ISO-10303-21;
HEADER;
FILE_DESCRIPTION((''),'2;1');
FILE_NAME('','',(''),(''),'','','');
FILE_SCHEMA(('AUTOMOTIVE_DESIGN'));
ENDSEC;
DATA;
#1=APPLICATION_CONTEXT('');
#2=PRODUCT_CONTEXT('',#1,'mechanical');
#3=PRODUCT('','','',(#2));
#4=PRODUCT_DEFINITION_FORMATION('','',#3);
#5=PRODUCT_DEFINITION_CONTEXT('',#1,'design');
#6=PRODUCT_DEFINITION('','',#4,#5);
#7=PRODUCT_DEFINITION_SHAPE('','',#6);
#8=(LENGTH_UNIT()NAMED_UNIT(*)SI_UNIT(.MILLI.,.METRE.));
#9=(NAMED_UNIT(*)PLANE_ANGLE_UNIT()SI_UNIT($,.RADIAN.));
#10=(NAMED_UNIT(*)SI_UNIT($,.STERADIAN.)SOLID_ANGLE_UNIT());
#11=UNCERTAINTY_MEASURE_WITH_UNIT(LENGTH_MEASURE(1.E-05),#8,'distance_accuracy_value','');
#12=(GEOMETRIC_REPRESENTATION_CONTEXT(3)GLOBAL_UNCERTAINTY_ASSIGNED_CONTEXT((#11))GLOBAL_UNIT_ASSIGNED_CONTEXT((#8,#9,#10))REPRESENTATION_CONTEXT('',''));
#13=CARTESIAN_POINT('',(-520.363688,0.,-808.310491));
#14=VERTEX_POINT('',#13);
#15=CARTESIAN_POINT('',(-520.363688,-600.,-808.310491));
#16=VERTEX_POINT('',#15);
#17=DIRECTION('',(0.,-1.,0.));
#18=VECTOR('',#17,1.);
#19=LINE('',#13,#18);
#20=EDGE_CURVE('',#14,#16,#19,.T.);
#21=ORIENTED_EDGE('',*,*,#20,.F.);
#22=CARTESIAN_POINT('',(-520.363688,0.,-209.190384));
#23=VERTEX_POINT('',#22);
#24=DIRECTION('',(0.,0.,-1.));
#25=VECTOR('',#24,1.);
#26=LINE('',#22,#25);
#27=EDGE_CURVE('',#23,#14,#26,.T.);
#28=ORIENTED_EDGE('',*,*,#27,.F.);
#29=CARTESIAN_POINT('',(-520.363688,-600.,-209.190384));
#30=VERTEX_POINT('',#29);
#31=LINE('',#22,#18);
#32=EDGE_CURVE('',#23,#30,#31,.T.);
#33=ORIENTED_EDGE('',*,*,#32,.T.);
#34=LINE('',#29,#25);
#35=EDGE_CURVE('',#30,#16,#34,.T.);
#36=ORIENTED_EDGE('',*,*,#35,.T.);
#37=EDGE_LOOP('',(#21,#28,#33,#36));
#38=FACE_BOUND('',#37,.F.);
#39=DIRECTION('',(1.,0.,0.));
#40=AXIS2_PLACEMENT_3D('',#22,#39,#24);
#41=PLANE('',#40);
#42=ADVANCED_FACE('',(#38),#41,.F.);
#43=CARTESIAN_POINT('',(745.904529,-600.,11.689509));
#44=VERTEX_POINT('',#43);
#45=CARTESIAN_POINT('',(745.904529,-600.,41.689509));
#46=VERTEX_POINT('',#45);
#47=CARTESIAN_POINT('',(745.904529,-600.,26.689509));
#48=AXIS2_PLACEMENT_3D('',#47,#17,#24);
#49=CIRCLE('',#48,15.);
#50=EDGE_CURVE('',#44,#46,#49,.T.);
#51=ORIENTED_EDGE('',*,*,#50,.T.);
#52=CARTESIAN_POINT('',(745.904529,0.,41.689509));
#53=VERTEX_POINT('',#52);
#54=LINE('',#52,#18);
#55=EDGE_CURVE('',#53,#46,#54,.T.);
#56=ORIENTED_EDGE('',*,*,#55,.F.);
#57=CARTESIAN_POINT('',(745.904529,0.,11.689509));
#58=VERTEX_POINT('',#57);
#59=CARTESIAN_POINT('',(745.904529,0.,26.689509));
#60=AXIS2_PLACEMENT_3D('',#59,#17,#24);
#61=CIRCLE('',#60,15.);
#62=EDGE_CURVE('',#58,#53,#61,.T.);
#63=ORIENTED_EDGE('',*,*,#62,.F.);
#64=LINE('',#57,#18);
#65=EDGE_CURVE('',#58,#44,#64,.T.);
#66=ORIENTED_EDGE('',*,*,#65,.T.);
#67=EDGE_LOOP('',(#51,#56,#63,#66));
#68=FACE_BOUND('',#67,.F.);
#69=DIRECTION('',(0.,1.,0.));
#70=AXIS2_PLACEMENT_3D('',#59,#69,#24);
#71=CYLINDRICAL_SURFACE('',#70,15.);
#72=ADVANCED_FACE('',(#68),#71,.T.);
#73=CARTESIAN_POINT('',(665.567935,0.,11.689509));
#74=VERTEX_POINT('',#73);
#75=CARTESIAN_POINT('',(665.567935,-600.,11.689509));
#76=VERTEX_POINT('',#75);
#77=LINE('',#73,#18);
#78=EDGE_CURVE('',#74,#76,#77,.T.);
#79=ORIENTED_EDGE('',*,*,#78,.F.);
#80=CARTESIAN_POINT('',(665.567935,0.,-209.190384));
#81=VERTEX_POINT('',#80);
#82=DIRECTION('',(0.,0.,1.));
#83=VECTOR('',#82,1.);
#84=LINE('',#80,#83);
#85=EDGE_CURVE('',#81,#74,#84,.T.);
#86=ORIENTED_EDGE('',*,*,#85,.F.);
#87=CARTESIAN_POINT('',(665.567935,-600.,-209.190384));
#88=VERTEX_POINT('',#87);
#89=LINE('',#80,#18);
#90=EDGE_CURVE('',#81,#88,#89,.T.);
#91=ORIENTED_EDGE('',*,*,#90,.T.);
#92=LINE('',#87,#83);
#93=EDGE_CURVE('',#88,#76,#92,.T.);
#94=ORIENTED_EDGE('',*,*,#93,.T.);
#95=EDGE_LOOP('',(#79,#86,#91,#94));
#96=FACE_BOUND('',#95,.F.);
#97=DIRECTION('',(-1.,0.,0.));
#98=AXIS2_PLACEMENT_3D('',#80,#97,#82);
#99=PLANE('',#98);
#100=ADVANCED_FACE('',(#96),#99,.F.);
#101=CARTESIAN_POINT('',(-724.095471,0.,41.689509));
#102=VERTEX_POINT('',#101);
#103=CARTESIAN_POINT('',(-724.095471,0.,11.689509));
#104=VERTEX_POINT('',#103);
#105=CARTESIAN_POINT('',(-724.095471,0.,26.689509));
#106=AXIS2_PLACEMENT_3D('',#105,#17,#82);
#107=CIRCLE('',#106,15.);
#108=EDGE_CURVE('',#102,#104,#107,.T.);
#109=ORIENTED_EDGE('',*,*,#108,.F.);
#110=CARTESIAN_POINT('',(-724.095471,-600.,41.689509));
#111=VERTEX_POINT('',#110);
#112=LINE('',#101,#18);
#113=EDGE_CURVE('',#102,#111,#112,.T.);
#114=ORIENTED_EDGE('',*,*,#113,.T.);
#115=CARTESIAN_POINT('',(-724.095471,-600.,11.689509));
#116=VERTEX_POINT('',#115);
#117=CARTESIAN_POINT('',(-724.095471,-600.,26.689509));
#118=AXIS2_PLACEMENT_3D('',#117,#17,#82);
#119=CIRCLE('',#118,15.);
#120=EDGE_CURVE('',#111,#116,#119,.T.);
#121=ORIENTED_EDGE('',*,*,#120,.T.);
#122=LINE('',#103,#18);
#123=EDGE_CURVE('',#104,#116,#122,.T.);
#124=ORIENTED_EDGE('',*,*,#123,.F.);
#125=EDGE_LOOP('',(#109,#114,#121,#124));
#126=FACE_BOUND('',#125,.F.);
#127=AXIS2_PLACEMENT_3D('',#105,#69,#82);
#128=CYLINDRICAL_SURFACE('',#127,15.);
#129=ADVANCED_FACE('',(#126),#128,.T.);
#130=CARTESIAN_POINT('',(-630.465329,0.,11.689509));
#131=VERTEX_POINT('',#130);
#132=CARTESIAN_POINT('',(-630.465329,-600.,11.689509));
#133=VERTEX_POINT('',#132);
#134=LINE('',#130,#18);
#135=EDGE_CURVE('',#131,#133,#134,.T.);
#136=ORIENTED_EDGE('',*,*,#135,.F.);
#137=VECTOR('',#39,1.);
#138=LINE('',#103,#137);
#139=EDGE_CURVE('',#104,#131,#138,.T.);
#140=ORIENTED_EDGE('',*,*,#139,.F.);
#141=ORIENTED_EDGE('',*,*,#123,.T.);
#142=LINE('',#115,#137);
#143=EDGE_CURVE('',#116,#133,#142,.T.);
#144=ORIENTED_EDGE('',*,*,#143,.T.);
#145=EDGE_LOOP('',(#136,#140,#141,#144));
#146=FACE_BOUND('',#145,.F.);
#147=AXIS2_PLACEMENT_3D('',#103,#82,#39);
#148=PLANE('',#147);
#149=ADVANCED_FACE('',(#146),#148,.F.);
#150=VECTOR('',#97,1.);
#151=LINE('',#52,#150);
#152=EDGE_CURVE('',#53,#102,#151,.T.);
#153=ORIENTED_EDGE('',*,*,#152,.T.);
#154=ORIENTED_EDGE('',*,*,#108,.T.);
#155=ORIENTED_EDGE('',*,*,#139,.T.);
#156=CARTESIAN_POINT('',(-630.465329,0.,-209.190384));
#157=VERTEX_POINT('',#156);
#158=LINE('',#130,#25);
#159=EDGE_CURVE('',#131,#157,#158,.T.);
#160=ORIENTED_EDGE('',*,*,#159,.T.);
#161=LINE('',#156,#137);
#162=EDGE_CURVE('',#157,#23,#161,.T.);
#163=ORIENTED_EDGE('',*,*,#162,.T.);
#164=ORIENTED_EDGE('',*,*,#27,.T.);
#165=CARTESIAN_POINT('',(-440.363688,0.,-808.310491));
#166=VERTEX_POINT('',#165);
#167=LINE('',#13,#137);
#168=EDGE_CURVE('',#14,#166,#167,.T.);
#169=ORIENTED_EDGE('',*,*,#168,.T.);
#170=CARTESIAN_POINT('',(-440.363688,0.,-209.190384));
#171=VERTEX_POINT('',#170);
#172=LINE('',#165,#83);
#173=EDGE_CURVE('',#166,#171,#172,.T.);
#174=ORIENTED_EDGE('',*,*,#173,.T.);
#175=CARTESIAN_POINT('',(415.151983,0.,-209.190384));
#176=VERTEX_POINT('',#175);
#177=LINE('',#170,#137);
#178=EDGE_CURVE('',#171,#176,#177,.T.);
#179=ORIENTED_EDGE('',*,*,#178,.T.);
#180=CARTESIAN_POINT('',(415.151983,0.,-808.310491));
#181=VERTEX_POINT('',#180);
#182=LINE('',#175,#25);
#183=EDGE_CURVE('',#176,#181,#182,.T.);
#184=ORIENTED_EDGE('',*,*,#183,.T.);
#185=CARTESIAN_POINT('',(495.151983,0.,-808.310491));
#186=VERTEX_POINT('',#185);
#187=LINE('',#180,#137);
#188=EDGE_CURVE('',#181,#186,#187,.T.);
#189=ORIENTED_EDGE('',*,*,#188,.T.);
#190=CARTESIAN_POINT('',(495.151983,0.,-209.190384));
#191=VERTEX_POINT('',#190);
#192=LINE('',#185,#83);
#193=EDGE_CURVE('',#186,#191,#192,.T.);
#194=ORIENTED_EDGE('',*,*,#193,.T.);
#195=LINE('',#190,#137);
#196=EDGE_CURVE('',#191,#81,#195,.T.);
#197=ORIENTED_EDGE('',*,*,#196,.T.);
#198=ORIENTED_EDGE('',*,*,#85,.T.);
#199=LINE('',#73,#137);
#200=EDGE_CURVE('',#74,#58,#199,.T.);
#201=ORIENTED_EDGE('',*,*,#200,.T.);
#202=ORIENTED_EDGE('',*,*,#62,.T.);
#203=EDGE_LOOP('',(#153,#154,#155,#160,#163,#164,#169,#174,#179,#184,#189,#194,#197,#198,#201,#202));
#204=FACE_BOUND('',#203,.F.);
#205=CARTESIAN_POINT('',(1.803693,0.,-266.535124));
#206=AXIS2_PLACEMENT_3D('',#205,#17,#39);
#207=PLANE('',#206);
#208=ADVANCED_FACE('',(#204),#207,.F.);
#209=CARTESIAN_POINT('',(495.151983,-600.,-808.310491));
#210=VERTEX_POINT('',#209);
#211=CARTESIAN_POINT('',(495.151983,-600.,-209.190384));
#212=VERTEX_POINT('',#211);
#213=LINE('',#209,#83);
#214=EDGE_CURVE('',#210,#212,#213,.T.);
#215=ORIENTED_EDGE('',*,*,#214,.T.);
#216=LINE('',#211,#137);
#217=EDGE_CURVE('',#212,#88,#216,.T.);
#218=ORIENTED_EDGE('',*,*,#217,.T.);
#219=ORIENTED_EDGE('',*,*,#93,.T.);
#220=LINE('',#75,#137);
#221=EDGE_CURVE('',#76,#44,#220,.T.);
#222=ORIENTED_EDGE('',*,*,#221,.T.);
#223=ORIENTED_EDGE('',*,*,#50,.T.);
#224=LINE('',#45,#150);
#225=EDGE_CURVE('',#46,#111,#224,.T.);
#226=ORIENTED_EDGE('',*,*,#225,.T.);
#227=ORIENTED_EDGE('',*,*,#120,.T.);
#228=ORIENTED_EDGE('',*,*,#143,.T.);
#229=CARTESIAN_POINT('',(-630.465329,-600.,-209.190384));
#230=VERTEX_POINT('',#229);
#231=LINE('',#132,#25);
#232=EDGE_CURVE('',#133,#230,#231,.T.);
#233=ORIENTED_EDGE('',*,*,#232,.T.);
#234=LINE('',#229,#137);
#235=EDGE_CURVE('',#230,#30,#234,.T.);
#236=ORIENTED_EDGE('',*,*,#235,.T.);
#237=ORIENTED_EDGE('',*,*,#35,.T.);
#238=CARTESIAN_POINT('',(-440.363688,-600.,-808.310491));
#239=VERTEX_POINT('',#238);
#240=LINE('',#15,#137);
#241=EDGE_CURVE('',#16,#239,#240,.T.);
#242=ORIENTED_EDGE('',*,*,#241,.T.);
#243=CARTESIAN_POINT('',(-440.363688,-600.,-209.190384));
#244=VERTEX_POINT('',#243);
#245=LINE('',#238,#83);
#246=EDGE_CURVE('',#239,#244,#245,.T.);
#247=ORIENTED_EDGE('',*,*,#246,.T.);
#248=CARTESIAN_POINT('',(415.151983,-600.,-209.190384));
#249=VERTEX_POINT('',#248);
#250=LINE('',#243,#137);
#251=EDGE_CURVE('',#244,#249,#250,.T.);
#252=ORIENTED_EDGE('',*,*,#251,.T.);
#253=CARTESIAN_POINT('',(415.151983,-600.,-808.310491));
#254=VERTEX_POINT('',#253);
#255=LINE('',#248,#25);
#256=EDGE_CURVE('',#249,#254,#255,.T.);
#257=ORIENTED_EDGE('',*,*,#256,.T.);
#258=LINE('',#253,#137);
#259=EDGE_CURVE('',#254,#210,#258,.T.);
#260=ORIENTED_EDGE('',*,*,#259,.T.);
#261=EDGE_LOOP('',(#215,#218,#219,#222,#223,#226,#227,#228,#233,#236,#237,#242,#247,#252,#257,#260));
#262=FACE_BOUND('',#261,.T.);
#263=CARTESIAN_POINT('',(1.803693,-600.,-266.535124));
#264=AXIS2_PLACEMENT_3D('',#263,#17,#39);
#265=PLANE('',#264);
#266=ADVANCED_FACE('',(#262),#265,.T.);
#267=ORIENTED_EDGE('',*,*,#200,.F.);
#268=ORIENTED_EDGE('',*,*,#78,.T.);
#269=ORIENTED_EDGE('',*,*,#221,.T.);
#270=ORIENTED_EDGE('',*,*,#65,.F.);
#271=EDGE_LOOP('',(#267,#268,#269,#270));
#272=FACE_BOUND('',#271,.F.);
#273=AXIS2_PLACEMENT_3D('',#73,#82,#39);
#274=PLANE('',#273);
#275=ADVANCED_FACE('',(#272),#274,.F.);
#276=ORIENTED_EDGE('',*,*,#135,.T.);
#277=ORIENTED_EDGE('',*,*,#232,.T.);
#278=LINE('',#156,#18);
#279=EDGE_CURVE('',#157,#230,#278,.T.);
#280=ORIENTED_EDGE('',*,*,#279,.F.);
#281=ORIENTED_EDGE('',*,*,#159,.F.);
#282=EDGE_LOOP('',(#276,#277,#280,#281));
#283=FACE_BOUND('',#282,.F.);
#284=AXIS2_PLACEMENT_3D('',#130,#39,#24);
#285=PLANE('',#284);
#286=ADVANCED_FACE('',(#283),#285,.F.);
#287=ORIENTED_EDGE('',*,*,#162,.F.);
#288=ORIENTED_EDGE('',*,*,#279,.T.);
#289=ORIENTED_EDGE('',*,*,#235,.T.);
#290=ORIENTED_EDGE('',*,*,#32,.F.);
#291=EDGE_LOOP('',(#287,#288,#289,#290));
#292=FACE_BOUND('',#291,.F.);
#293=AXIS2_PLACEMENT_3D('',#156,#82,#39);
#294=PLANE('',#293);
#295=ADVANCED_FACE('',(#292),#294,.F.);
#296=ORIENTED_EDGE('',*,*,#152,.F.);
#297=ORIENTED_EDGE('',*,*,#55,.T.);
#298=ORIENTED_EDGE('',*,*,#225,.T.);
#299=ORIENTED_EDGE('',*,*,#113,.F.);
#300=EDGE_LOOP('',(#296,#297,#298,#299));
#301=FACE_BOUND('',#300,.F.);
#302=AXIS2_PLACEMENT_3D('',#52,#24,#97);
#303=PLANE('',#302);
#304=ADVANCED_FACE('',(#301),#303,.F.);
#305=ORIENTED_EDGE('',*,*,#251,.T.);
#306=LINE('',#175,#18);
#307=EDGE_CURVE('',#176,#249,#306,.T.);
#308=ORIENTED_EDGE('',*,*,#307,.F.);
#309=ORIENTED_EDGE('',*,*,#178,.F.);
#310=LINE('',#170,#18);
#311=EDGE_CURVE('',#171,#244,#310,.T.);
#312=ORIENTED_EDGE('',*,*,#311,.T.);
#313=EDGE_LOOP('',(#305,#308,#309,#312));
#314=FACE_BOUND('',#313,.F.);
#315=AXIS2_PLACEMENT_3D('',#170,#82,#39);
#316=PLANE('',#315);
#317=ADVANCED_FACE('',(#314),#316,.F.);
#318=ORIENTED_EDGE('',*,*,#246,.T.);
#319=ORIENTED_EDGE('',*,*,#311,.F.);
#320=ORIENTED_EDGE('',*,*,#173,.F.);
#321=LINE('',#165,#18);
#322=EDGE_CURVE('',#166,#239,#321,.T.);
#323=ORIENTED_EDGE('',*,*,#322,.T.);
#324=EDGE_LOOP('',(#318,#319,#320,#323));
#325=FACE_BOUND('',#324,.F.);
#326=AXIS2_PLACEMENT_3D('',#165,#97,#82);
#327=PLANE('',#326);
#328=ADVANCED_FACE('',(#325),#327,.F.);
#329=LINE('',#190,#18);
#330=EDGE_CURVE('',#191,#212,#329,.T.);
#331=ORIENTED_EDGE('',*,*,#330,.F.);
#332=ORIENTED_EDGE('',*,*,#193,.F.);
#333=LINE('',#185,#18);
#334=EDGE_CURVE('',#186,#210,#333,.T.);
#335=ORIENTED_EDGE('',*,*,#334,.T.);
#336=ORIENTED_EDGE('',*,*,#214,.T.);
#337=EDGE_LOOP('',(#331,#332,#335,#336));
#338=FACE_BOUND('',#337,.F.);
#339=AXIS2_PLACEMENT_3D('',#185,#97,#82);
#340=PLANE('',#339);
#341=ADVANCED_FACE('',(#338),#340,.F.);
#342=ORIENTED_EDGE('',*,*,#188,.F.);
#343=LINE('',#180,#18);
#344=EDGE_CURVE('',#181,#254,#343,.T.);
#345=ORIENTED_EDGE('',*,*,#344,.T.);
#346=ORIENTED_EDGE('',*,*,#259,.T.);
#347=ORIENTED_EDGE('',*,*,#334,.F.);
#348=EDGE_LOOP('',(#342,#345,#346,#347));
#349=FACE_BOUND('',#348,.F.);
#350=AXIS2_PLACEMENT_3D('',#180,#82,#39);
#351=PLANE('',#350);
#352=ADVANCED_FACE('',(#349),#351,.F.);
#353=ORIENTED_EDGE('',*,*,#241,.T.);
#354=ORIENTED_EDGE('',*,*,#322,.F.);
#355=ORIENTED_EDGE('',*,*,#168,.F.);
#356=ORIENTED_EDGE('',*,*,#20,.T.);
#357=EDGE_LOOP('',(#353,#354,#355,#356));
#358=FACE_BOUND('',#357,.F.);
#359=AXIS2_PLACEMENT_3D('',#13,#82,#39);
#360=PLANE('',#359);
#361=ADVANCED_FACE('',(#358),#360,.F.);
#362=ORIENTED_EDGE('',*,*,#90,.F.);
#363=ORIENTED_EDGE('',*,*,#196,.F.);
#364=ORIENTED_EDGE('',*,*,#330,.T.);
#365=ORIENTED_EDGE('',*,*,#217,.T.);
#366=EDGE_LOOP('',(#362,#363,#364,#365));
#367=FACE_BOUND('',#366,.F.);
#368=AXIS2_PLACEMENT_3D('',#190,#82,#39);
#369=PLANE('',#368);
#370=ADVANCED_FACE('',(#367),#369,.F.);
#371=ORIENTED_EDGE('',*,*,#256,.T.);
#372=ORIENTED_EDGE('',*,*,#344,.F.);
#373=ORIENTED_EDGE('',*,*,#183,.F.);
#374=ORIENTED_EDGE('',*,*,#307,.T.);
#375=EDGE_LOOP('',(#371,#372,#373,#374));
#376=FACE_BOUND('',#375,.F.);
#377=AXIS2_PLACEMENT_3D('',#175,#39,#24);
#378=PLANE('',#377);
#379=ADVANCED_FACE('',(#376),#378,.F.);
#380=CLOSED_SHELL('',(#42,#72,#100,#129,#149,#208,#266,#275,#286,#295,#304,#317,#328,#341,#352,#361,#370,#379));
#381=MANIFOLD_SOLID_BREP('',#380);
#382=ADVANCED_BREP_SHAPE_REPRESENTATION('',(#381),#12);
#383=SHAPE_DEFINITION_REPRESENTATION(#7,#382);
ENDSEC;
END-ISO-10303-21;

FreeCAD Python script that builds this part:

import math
import FreeCAD as App
import Part
import Sketcher

V = App.Vector

doc = App.newDocument("Part")
params = doc.addObject("Spreadsheet::Sheet", "Params")
for row, (alias, value) in enumerate([
    ("sketch1_radius", "15 mm"),
    ("sketch1_width", "1470 mm"),
    ("sketch1_width2", "80 mm"),
    ("pad1_length", "600 mm"),
], start=1):
    params.set(f"A{row}", alias)
    params.set(f"B{row}", "=" + value)
    params.setAlias(f"B{row}", alias)

body = doc.addObject("PartDesign::Body", "Body")

# Sketch on XZ plane
sketch1 = body.newObject("Sketcher::SketchObject", "Sketch")
sketch1.AttachmentSupport = (doc.getObject("XZ_Plane"), [""])
sketch1.MapMode = "FlatFace"
sketch1.addGeometry([
    Part.LineSegment(V(746, 42, 0), V(-724, 42, 0)),  # 0
    Part.ArcOfCircle(Part.Circle(V(-724, 27, 0), V(0, 0, 1), 15), math.radians(90), math.radians(270)),  # 1
    Part.LineSegment(V(-724, 12, 0), V(-630, 12, 0)),  # 2
    Part.LineSegment(V(-630, 12, 0), V(-630, -209, 0)),  # 3
    Part.LineSegment(V(-630, -209, 0), V(-520, -209, 0)),  # 4
    Part.LineSegment(V(-520, -209, 0), V(-520, -808, 0)),  # 5
    Part.LineSegment(V(-520, -808, 0), V(-440, -808, 0)),  # 6
    Part.LineSegment(V(-440, -808, 0), V(-440, -209, 0)),  # 7
    Part.LineSegment(V(-440, -209, 0), V(415, -209, 0)),  # 8
    Part.LineSegment(V(415, -209, 0), V(415, -808, 0)),  # 9
    Part.LineSegment(V(415, -808, 0), V(495, -808, 0)),  # 10
    Part.LineSegment(V(495, -808, 0), V(495, -209, 0)),  # 11
    Part.LineSegment(V(495, -209, 0), V(666, -209, 0)),  # 12
    Part.LineSegment(V(666, -209, 0), V(666, 12, 0)),  # 13
    Part.LineSegment(V(666, 12, 0), V(746, 12, 0)),  # 14
    Part.ArcOfCircle(Part.Circle(V(746, 27, 0), V(0, 0, 1), 15), math.radians(-90), math.radians(90)),  # 15
], False)
sketch1.addConstraint([
    Sketcher.Constraint("Tangent", 0, 2, 1, 1),
    Sketcher.Constraint("Tangent", 1, 2, 2, 1),
    Sketcher.Constraint("Coincident", 2, 2, 3, 1),
    Sketcher.Constraint("Coincident", 3, 2, 4, 1),
    Sketcher.Constraint("Coincident", 4, 2, 5, 1),
    Sketcher.Constraint("Coincident", 5, 2, 6, 1),
    Sketcher.Constraint("Coincident", 6, 2, 7, 1),
    Sketcher.Constraint("Coincident", 7, 2, 8, 1),
    Sketcher.Constraint("Coincident", 8, 2, 9, 1),
    Sketcher.Constraint("Coincident", 9, 2, 10, 1),
    Sketcher.Constraint("Coincident", 10, 2, 11, 1),
    Sketcher.Constraint("Coincident", 11, 2, 12, 1),
    Sketcher.Constraint("Coincident", 12, 2, 13, 1),
    Sketcher.Constraint("Coincident", 13, 2, 14, 1),
    Sketcher.Constraint("Tangent", 14, 2, 15, 1),
    Sketcher.Constraint("Tangent", 15, 2, 0, 1),
    Sketcher.Constraint("Horizontal", 0),
    Sketcher.Constraint("Horizontal", 2),
    Sketcher.Constraint("Vertical", 3),
    Sketcher.Constraint("Horizontal", 4),
    Sketcher.Constraint("Vertical", 5),
    Sketcher.Constraint("Horizontal", 6),
    Sketcher.Constraint("Vertical", 7),
    Sketcher.Constraint("Horizontal", 8),
    Sketcher.Constraint("Vertical", 9),
    Sketcher.Constraint("Horizontal", 10),
    Sketcher.Constraint("Vertical", 11),
    Sketcher.Constraint("Horizontal", 12),
    Sketcher.Constraint("Vertical", 13),
    Sketcher.Constraint("Horizontal", 14),
    Sketcher.Constraint("Equal", 1, 15),
    Sketcher.Constraint("Horizontal", 4, 2, 7, 2),
    Sketcher.Constraint("Horizontal", 6, 2, 9, 2),
    Sketcher.Constraint("Horizontal", 8, 2, 11, 2),
    Sketcher.Constraint("Equal", 6, 10),
    Sketcher.Constraint("Radius", 1, 15.0),
    Sketcher.Constraint("DistanceX", 0, 2, 0, 1, 1470.0),
    Sketcher.Constraint("DistanceX", 6, 1, 6, 2, 80.0),
    Sketcher.Constraint("DistanceY", 5, 2, 2, 2, 820.0),
    Sketcher.Constraint("DistanceX", 2, 1, 2, 2, 93.630142),
    Sketcher.Constraint("DistanceX", 4, 1, 4, 2, 110.101641),
    Sketcher.Constraint("DistanceX", 8, 1, 8, 2, 855.515671),
    Sketcher.Constraint("DistanceX", 12, 1, 12, 2, 170.415952),
    Sketcher.Constraint("DistanceY", 3, 2, 3, 1, 220.879893),
    Sketcher.Constraint("DistanceX", 1, 3, -1, 1, 724.095471),
    Sketcher.Constraint("DistanceY", -1, 1, 1, 3, 26.689509),
])
sketch1.setExpression("Constraints[35]", "Params.sketch1_radius")
sketch1.setExpression("Constraints[36]", "Params.sketch1_width")
sketch1.setExpression("Constraints[37]", "Params.sketch1_width2")
pad1 = body.newObject("PartDesign::Pad", "Pad")
pad1.Profile = sketch1
pad1.setExpression("Length", "Params.pad1_length")

doc.recompute()
